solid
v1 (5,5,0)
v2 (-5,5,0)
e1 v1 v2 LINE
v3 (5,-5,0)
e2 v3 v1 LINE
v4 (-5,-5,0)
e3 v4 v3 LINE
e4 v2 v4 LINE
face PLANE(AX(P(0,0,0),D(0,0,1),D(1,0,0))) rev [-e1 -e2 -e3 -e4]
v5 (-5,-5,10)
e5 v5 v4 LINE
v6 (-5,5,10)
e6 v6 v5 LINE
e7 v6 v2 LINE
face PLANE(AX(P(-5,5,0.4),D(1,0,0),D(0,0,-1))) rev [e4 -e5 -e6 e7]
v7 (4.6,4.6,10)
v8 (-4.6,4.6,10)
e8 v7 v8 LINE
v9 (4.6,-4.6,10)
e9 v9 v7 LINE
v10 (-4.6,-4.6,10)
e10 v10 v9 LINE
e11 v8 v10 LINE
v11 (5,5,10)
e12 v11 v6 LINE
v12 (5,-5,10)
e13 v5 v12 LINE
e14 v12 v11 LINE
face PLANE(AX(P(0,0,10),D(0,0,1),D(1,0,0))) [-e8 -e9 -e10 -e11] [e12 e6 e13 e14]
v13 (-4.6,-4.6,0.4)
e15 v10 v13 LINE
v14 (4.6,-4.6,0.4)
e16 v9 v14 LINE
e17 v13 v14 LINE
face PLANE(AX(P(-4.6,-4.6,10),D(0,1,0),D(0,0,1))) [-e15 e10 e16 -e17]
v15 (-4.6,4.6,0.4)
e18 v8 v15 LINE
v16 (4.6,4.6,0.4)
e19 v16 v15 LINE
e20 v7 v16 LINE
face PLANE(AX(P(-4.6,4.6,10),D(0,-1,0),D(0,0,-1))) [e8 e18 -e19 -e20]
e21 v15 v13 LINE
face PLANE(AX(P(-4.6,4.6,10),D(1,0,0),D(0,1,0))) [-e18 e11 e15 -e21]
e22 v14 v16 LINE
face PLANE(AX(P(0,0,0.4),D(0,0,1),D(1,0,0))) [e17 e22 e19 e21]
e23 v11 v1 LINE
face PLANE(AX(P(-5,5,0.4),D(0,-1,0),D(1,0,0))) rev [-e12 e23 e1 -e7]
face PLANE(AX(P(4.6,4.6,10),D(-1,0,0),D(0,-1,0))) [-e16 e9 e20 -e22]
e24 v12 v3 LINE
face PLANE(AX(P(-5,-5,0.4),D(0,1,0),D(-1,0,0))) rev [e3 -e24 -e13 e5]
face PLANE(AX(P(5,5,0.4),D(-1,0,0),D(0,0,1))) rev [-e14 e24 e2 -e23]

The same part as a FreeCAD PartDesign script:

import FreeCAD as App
import Part
import Sketcher
Q = App.Units.Quantity


def add_polygon(sketch, points):
    """Adds a closed chain of lines whose ends are joined by coincident constraints."""
    first, n = sketch.GeometryCount, len(points)
    for a, b in zip(points, points[1:] + points[:1]):
        sketch.addGeometry(Part.LineSegment(App.Vector(*a, 0), App.Vector(*b, 0)), False)
    for i in range(n):
        sketch.addConstraint(Sketcher.Constraint("Coincident", first + i, 2, first + (i + 1) % n, 1))

doc = App.newDocument("Part")
body = doc.addObject("PartDesign::Body", "Body")

# Sketch on XY plane
sketch1 = doc.addObject("Sketcher::SketchObject", "Sketch")
body.addObject(sketch1)
sketch1.AttachmentSupport = (doc.XY_Plane, [""])
sketch1.MapMode = "FlatFace"
add_polygon(sketch1, [(-5, 5), (-5, -5), (5, -5), (5, 5)])  # lines 0-3
sketch1.addConstraint([
    Sketcher.Constraint("Vertical", 0),
    Sketcher.Constraint("Horizontal", 1),
    Sketcher.Constraint("Vertical", 2),
    Sketcher.Constraint("Horizontal", 3),
    Sketcher.Constraint("Symmetric", 0, 2, 2, 2, -1, 1),
    Sketcher.Constraint("Equal", 3, 0),
    Sketcher.Constraint("DistanceX", 1, 1, 1, 2, Q("10 mm")),
])
pad1 = doc.addObject("PartDesign::Pad", "Pad")
body.addObject(pad1)
pad1.Profile = sketch1
pad1.Length = 0.4

# Sketch on XY plane
sketch2 = doc.addObject("Sketcher::SketchObject", "Sketch001")
body.addObject(sketch2)
sketch2.AttachmentSupport = (doc.XY_Plane, [""])
sketch2.MapMode = "FlatFace"
sketch2.AttachmentOffset = App.Placement(App.Vector(0, 0, 0.4), App.Rotation())
add_polygon(sketch2, [(-5, 5), (-5, -5), (5, -5), (5, 5)])  # lines 0-3
add_polygon(sketch2, [(4.6, -4.6), (-4.6, -4.6), (-4.6, 4.6), (4.6, 4.6)])  # lines 4-7
sketch2.addConstraint([
    Sketcher.Constraint("Vertical", 0),
    Sketcher.Constraint("Horizontal", 1),
    Sketcher.Constraint("Vertical", 2),
    Sketcher.Constraint("Horizontal", 3),
    Sketcher.Constraint("Horizontal", 4),
    Sketcher.Constraint("Vertical", 5),
    Sketcher.Constraint("Horizontal", 6),
    Sketcher.Constraint("Vertical", 7),
    Sketcher.Constraint("Symmetric", 0, 2, 2, 2, -1, 1),
    Sketcher.Constraint("Symmetric", 4, 2, 6, 2, -1, 1),
    Sketcher.Constraint("Equal", 3, 0),
    Sketcher.Constraint("Equal", 6, 5),
    Sketcher.Constraint("DistanceX", 1, 1, 1, 2, Q("10 mm")),
    Sketcher.Constraint("DistanceX", 4, 2, 4, 1, Q("9.2 mm")),
])
pad2 = doc.addObject("PartDesign::Pad", "Pad001")
body.addObject(pad2)
pad2.Profile = sketch2
pad2.Length = 9.6

doc.recompute()
